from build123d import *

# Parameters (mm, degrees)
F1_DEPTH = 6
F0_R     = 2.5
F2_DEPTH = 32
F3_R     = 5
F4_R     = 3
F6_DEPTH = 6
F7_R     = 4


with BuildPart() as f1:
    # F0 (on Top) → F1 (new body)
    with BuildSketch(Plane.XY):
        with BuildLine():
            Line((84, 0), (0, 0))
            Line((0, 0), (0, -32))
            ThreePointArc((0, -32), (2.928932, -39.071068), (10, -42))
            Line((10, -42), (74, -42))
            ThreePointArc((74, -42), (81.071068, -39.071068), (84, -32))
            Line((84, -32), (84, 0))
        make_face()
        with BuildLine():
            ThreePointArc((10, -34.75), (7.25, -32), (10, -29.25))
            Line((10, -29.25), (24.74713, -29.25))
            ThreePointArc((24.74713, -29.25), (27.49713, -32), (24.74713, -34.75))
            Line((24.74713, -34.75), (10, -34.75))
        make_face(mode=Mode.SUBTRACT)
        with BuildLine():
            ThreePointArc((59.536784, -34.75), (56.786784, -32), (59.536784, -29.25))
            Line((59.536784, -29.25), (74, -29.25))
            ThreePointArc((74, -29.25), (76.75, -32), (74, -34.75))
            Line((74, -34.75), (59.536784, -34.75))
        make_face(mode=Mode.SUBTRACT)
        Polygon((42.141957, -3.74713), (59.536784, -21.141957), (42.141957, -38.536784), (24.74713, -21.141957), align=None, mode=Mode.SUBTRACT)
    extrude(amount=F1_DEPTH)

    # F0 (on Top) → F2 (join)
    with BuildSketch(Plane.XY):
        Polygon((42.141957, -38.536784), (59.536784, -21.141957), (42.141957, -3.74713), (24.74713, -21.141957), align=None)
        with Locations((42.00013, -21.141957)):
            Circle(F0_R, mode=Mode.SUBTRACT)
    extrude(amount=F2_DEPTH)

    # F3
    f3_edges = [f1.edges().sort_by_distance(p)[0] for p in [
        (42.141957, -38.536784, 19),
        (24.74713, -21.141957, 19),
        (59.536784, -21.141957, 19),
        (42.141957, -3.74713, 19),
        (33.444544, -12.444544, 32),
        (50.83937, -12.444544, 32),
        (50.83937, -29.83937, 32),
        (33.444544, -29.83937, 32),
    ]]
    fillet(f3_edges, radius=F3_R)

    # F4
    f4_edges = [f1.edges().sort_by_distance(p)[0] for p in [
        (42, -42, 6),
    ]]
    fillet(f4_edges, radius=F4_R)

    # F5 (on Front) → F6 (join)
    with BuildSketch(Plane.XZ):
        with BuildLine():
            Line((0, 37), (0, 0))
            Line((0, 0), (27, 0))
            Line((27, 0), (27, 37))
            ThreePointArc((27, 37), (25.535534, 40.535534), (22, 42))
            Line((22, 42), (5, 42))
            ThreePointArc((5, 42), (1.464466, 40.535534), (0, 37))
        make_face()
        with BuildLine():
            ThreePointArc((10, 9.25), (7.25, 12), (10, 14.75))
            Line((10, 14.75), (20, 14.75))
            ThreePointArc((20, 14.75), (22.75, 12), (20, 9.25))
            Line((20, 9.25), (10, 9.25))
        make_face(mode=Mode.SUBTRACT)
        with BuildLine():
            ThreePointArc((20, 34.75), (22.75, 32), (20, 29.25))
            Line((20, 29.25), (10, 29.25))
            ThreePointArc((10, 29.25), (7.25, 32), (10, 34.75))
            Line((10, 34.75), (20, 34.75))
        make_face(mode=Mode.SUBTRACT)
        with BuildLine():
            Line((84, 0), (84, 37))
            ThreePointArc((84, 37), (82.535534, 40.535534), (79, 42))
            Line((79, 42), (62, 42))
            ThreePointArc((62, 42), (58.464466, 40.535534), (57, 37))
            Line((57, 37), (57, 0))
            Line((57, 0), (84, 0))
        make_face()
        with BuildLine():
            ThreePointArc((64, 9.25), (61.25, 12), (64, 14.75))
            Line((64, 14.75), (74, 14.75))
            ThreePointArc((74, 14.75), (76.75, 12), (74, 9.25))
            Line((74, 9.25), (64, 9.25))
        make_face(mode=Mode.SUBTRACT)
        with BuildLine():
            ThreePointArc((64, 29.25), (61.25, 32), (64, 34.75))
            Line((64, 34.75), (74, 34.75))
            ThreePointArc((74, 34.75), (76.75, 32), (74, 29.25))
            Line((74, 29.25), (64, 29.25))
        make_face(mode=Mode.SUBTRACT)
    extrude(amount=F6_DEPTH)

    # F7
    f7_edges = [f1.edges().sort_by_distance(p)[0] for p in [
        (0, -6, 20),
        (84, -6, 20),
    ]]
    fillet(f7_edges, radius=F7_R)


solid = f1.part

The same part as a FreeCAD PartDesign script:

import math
import FreeCAD as App
import Part
import Sketcher
from FreeCAD import Vector


def edges_at(feature, points):
    """Names of the edges that pass closest to the given points."""
    edges = feature.Shape.Edges
    near = lambda p: min(range(len(edges)), key=lambda i: edges[i].distToShape(Part.Vertex(*p))[0])
    return sorted({f"Edge{near(p) + 1}" for p in points})

doc = App.newDocument("Part")
body = doc.addObject("PartDesign::Body", "Body")

# Sketch on XY plane
sketch1 = body.newObject("Sketcher::SketchObject", "Sketch")
sketch1.AttachmentSupport = (doc.getObject("XY_Plane"), [""])
sketch1.MapMode = "FlatFace"
sketch1.addGeometry(Part.LineSegment(Vector(84, 0, 0), Vector(0, 0, 0)), False)
sketch1.addGeometry(Part.LineSegment(Vector(0, 0, 0), Vector(0, -32, 0)), False)
sketch1.addGeometry(Part.ArcOfCircle(Part.Circle(Vector(9.999999, -32.000001, 0), Vector(0, 0, 1), 9.999999), math.radians(179.999996), math.radians(270.000004)), False)
sketch1.addGeometry(Part.LineSegment(Vector(10, -42, 0), Vector(74, -42, 0)), False)
sketch1.addGeometry(Part.ArcOfCircle(Part.Circle(Vector(74.000001, -32.000001, 0), Vector(0, 0, 1), 9.999999), math.radians(-90.000004), math.radians(0.000004)), False)
sketch1.addGeometry(Part.LineSegment(Vector(84, -32, 0), Vector(84, 0, 0)), False)
sketch1.addGeometry(Part.LineSegment(Vector(24.74713, -34.75, 0), Vector(10, -34.75, 0)), False)
sketch1.addGeometry(Part.ArcOfCircle(Part.Circle(Vector(10, -32, 0), Vector(0, 0, 1), 2.75), math.radians(90), math.radians(270)), False)
sketch1.addGeometry(Part.LineSegment(Vector(10, -29.25, 0), Vector(24.74713, -29.25, 0)), False)
sketch1.addGeometry(Part.ArcOfCircle(Part.Circle(Vector(24.74713, -32, 0), Vector(0, 0, 1), 2.75), math.radians(-90), math.radians(90)), False)
sketch1.addGeometry(Part.LineSegment(Vector(74, -34.75, 0), Vector(59.536784, -34.75, 0)), False)
sketch1.addGeometry(Part.ArcOfCircle(Part.Circle(Vector(59.536784, -32, 0), Vector(0, 0, 1), 2.75), math.radians(90), math.radians(270)), False)
sketch1.addGeometry(Part.LineSegment(Vector(59.536784, -29.25, 0), Vector(74, -29.25, 0)), False)
sketch1.addGeometry(Part.ArcOfCircle(Part.Circle(Vector(74, -32, 0), Vector(0, 0, 1), 2.75), math.radians(-90), math.radians(90)), False)
sketch1.addGeometry(Part.LineSegment(Vector(24.74713, -21.141957, 0), Vector(42.141957, -3.74713, 0)), False)
sketch1.addGeometry(Part.LineSegment(Vector(42.141957, -3.74713, 0), Vector(59.536784, -21.141957, 0)), False)
sketch1.addGeometry(Part.LineSegment(Vector(59.536784, -21.141957, 0), Vector(42.141957, -38.536784, 0)), False)
sketch1.addGeometry(Part.LineSegment(Vector(42.141957, -38.536784, 0), Vector(24.74713, -21.141957, 0)), False)
sketch1.addConstraint(Sketcher.Constraint("Coincident", 0, 2, 1, 1))
sketch1.addConstraint(Sketcher.Constraint("Tangent", 1, 2, 2, 1))
sketch1.addConstraint(Sketcher.Constraint("Tangent", 2, 2, 3, 1))
sketch1.addConstraint(Sketcher.Constraint("Tangent", 3, 2, 4, 1))
sketch1.addConstraint(Sketcher.Constraint("Tangent", 4, 2, 5, 1))
sketch1.addConstraint(Sketcher.Constraint("Coincident", 5, 2, 0, 1))
sketch1.addConstraint(Sketcher.Constraint("Tangent", 6, 2, 7, 2))
sketch1.addConstraint(Sketcher.Constraint("Tangent", 7, 1, 8, 1))
sketch1.addConstraint(Sketcher.Constraint("Tangent", 8, 2, 9, 2))
sketch1.addConstraint(Sketcher.Constraint("Tangent", 9, 1, 6, 1))
sketch1.addConstraint(Sketcher.Constraint("Tangent", 10, 2, 11, 2))
sketch1.addConstraint(Sketcher.Constraint("Tangent", 11, 1, 12, 1))
sketch1.addConstraint(Sketcher.Constraint("Tangent", 12, 2, 13, 2))
sketch1.addConstraint(Sketcher.Constraint("Tangent", 13, 1, 10, 1))
sketch1.addConstraint(Sketcher.Constraint("Coincident", 14, 2, 15, 1))
sketch1.addConstraint(Sketcher.Constraint("Coincident", 15, 2, 16, 1))
sketch1.addConstraint(Sketcher.Constraint("Coincident", 16, 2, 17, 1))
sketch1.addConstraint(Sketcher.Constraint("Coincident", 17, 2, 14, 1))
sketch1.addConstraint(Sketcher.Constraint("Horizontal", 0))
sketch1.addConstraint(Sketcher.Constraint("Vertical", 1))
sketch1.addConstraint(Sketcher.Constraint("Horizontal", 3))
sketch1.addConstraint(Sketcher.Constraint("Vertical", 5))
sketch1.addConstraint(Sketcher.Constraint("Horizontal", 6))
sketch1.addConstraint(Sketcher.Constraint("Horizontal", 8))
sketch1.addConstraint(Sketcher.Constraint("Horizontal", 10))
sketch1.addConstraint(Sketcher.Constraint("Horizontal", 12))
sketch1.addConstraint(Sketcher.Constraint("Coincident", 0, 2, -1, 1))
sketch1.addConstraint(Sketcher.Constraint("Coincident", 7, 3, 2, 3))
sketch1.addConstraint(Sketcher.Constraint("Coincident", 13, 3, 4, 3))
sketch1.addConstraint(Sketcher.Constraint("Equal", 2, 4))
sketch1.addConstraint(Sketcher.Constraint("Equal", 9, 11))
sketch1.addConstraint(Sketcher.Constraint("Perpendicular", 14, 15))
sketch1.addConstraint(Sketcher.Constraint("Perpendicular", 15, 16))
sketch1.addConstraint(Sketcher.Constraint("Perpendicular", 16, 17))
sketch1.addConstraint(Sketcher.Constraint("Horizontal", 15, 2, 17, 2))
sketch1.addConstraint(Sketcher.Constraint("Vertical", 11, 1, 15, 2))
sketch1.addConstraint(Sketcher.Constraint("Vertical", 14, 2, 16, 2))
sketch1.addConstraint(Sketcher.Constraint("Vertical", 9, 1, 17, 2))
sketch1.addConstraint(Sketcher.Constraint("Radius", 2, 9.999999))
sketch1.addConstraint(Sketcher.Constraint("DistanceX", 0, 2, 0, 1, 84.0))
sketch1.addConstraint(Sketcher.Constraint("DistanceY", 1, 2, 1, 1, 32.0))
sketch1.addConstraint(Sketcher.Constraint("Radius", 7, 2.75))
sketch1.addConstraint(Sketcher.Constraint("Distance", 14, 24.6))
sketch1.addConstraint(Sketcher.Constraint("DistanceX", 6, 2, 6, 1, 14.74713))
sketch1.addConstraint(Sketcher.Constraint("DistanceY", 14, 2, -1, 1, 3.74713))
pad1 = body.newObject("PartDesign::Pad", "Pad")
pad1.Profile = sketch1
pad1.Length = 6

# Sketch on XY plane
sketch2 = body.newObject("Sketcher::SketchObject", "Sketch001")
sketch2.AttachmentSupport = (doc.getObject("XY_Plane"), [""])
sketch2.MapMode = "FlatFace"
sketch2.addGeometry(Part.LineSegment(Vector(42.141957, -38.536784, 0), Vector(59.536784, -21.141957, 0)), False)
sketch2.addGeometry(Part.LineSegment(Vector(59.536784, -21.141957, 0), Vector(42.141957, -3.74713, 0)), False)
sketch2.addGeometry(Part.LineSegment(Vector(42.141957, -3.74713, 0), Vector(24.74713, -21.141957, 0)), False)
sketch2.addGeometry(Part.LineSegment(Vector(24.74713, -21.141957, 0), Vector(42.141957, -38.536784, 0)), False)
sketch2.addGeometry(Part.Circle(Vector(42.00013, -21.141957, 0), Vector(0, 0, 1), 2.5), False)
sketch2.addConstraint(Sketcher.Constraint("Coincident", 0, 2, 1, 1))
sketch2.addConstraint(Sketcher.Constraint("Coincident", 1, 2, 2, 1))
sketch2.addConstraint(Sketcher.Constraint("Coincident", 2, 2, 3, 1))
sketch2.addConstraint(Sketcher.Constraint("Coincident", 3, 2, 0, 1))
sketch2.addConstraint(Sketcher.Constraint("Perpendicular", 0, 1))
sketch2.addConstraint(Sketcher.Constraint("Perpendicular", 1, 2))
sketch2.addConstraint(Sketcher.Constraint("Perpendicular", 2, 3))
sketch2.addConstraint(Sketcher.Constraint("Horizontal", 4, 3, 0, 2))
sketch2.addConstraint(Sketcher.Constraint("Horizontal", 0, 2, 2, 2))
sketch2.addConstraint(Sketcher.Constraint("Vertical", 1, 2, 3, 2))
sketch2.addConstraint(Sketcher.Constraint("Diameter", 4, 5.0))
sketch2.addConstraint(Sketcher.Constraint("Distance", 0, 24.6))
sketch2.addConstraint(Sketcher.Constraint("DistanceX", 2, 2, 4, 3, 17.253))
sketch2.addConstraint(Sketcher.Constraint("DistanceX", -1, 1, 4, 3, 42.00013))
sketch2.addConstraint(Sketcher.Constraint("DistanceY", 1, 2, -1, 1, 3.74713))
pad2 = body.newObject("PartDesign::Pad", "Pad001")
pad2.Profile = sketch2
pad2.Length = 32
doc.recompute()

fillet = body.newObject("PartDesign::Fillet", "Fillet")
fillet.Base = (pad2, edges_at(pad2, [
    (42.142, -38.537, 19),
    (24.747, -21.142, 19),
    (59.537, -21.142, 19),
    (42.142, -3.747, 19),
    (33.445, -12.445, 32),
    (50.839, -12.445, 32),
    (50.839, -29.839, 32),
    (33.445, -29.839, 32),
]))
fillet.Radius = 5
doc.recompute()

fillet2 = body.newObject("PartDesign::Fillet", "Fillet001")
fillet2.Base = (fillet, edges_at(fillet, [(42, -42, 6)]))
fillet2.Radius = 3

# Sketch on XZ plane
sketch3 = body.newObject("Sketcher::SketchObject", "Sketch002")
sketch3.AttachmentSupport = (doc.getObject("XZ_Plane"), [""])
sketch3.MapMode = "FlatFace"
sketch3.addGeometry(Part.LineSegment(Vector(0, 37, 0), Vector(0, 0, 0)), False)
sketch3.addGeometry(Part.LineSegment(Vector(0, 0, 0), Vector(27, 0, 0)), False)
sketch3.addGeometry(Part.LineSegment(Vector(27, 0, 0), Vector(27, 37, 0)), False)
sketch3.addGeometry(Part.ArcOfCircle(Part.Circle(Vector(22, 37, 0), Vector(0, 0, 1), 5), math.radians(-0.000004), math.radians(90.000004)), False)
sketch3.addGeometry(Part.LineSegment(Vector(22, 42, 0), Vector(5, 42, 0)), False)
sketch3.addGeometry(Part.ArcOfCircle(Part.Circle(Vector(5, 37, 0), Vector(0, 0, 1), 5), math.radians(89.999996), math.radians(180.000004)), False)
sketch3.addGeometry(Part.LineSegment(Vector(20, 9.25, 0), Vector(10, 9.25, 0)), False)
sketch3.addGeometry(Part.ArcOfCircle(Part.Circle(Vector(10, 12, 0), Vector(0, 0, 1), 2.75), math.radians(90), math.radians(270)), False)
sketch3.addGeometry(Part.LineSegment(Vector(10, 14.75, 0), Vector(20, 14.75, 0)), False)
sketch3.addGeometry(Part.ArcOfCircle(Part.Circle(Vector(20, 12, 0), Vector(0, 0, 1), 2.75), math.radians(-90), math.radians(90)), False)
sketch3.addGeometry(Part.LineSegment(Vector(10, 34.75, 0), Vector(20, 34.75, 0)), False)
sketch3.addGeometry(Part.ArcOfCircle(Part.Circle(Vector(20, 32, 0), Vector(0, 0, 1), 2.75), math.radians(-90), math.radians(90)), False)
sketch3.addGeometry(Part.LineSegment(Vector(20, 29.25, 0), Vector(10, 29.25, 0)), False)
sketch3.addGeometry(Part.ArcOfCircle(Part.Circle(Vector(10, 32, 0), Vector(0, 0, 1), 2.75), math.radians(90), math.radians(270)), False)
sketch3.addGeometry(Part.LineSegment(Vector(84, 0, 0), Vector(84, 37, 0)), False)
sketch3.addGeometry(Part.ArcOfCircle(Part.Circle(Vector(79, 37, 0), Vector(0, 0, 1), 5), math.radians(-0.000004), math.radians(90.000004)), False)
sketch3.addGeometry(Part.LineSegment(Vector(79, 42, 0), Vector(62, 42, 0)), False)
sketch3.addGeometry(Part.ArcOfCircle(Part.Circle(Vector(62, 37, 0), Vector(0, 0, 1), 5), math.radians(89.999996), math.radians(180.000004)), False)
sketch3.addGeometry(Part.LineSegment(Vector(57, 37, 0), Vector(57, 0, 0)), False)
sketch3.addGeometry(Part.LineSegment(Vector(57, 0, 0), Vector(84, 0, 0)), False)
sketch3.addGeometry(Part.LineSegment(Vector(74, 9.25, 0), Vector(64, 9.25, 0)), False)
sketch3.addGeometry(Part.ArcOfCircle(Part.Circle(Vector(64, 12, 0), Vector(0, 0, 1), 2.75), math.radians(90), math.radians(270)), False)
sketch3.addGeometry(Part.LineSegment(Vector(64, 14.75, 0), Vector(74, 14.75, 0)), False)
sketch3.addGeometry(Part.ArcOfCircle(Part.Circle(Vector(74, 12, 0), Vector(0, 0, 1), 2.75), math.radians(-90), math.radians(90)), False)
sketch3.addGeometry(Part.LineSegment(Vector(74, 29.25, 0), Vector(64, 29.25, 0)), False)
sketch3.addGeometry(Part.ArcOfCircle(Part.Circle(Vector(64, 32, 0), Vector(0, 0, 1), 2.75), math.radians(90), math.radians(270)), False)
sketch3.addGeometry(Part.LineSegment(Vector(64, 34.75, 0), Vector(74, 34.75, 0)), False)
sketch3.addGeometry(Part.ArcOfCircle(Part.Circle(Vector(74, 32, 0), Vector(0, 0, 1), 2.75), math.radians(-90), math.radians(90)), False)
sketch3.addConstraint(Sketcher.Constraint("Coincident", 0, 2, 1, 1))
sketch3.addConstraint(Sketcher.Constraint("Coincident", 1, 2, 2, 1))
sketch3.addConstraint(Sketcher.Constraint("Tangent", 2, 2, 3, 1))
sketch3.addConstraint(Sketcher.Constraint("Tangent", 3, 2, 4, 1))
sketch3.addConstraint(Sketcher.Constraint("Tangent", 4, 2, 5, 1))
sketch3.addConstraint(Sketcher.Constraint("Tangent", 5, 2, 0, 1))
sketch3.addConstraint(Sketcher.Constraint("Tangent", 6, 2, 7, 2))
sketch3.addConstraint(Sketcher.Constraint("Tangent", 7, 1, 8, 1))
sketch3.addConstraint(Sketcher.Constraint("Tangent", 8, 2, 9, 2))
sketch3.addConstraint(Sketcher.Constraint("Tangent", 9, 1, 6, 1))
sketch3.addConstraint(Sketcher.Constraint("Tangent", 10, 2, 11, 2))
sketch3.addConstraint(Sketcher.Constraint("Tangent", 11, 1, 12, 1))
sketch3.addConstraint(Sketcher.Constraint("Tangent", 12, 2, 13, 2))
sketch3.addConstraint(Sketcher.Constraint("Tangent", 13, 1, 10, 1))
sketch3.addConstraint(Sketcher.Constraint("Tangent", 14, 2, 15, 1))
sketch3.addConstraint(Sketcher.Constraint("Tangent", 15, 2, 16, 1))
sketch3.addConstraint(Sketcher.Constraint("Tangent", 16, 2, 17, 1))
sketch3.addConstraint(Sketcher.Constraint("Tangent", 17, 2, 18, 1))
sketch3.addConstraint(Sketcher.Constraint("Coincident", 18, 2, 19, 1))
sketch3.addConstraint(Sketcher.Constraint("Coincident", 19, 2, 14, 1))
sketch3.addConstraint(Sketcher.Constraint("Tangent", 20, 2, 21, 2))
sketch3.addConstraint(Sketcher.Constraint("Tangent", 21, 1, 22, 1))
sketch3.addConstraint(Sketcher.Constraint("Tangent", 22, 2, 23, 2))
sketch3.addConstraint(Sketcher.Constraint("Tangent", 23, 1, 20, 1))
sketch3.addConstraint(Sketcher.Constraint("Tangent", 24, 2, 25, 2))
sketch3.addConstraint(Sketcher.Constraint("Tangent", 25, 1, 26, 1))
sketch3.addConstraint(Sketcher.Constraint("Tangent", 26, 2, 27, 2))
sketch3.addConstraint(Sketcher.Constraint("Tangent", 27, 1, 24, 1))
sketch3.addConstraint(Sketcher.Constraint("Vertical", 0))
sketch3.addConstraint(Sketcher.Constraint("Horizontal", 1))
sketch3.addConstraint(Sketcher.Constraint("Vertical", 2))
sketch3.addConstraint(Sketcher.Constraint("Horizontal", 4))
sketch3.addConstraint(Sketcher.Constraint("Horizontal", 6))
sketch3.addConstraint(Sketcher.Constraint("Horizontal", 8))
sketch3.addConstraint(Sketcher.Constraint("Horizontal", 10))
sketch3.addConstraint(Sketcher.Constraint("Horizontal", 12))
sketch3.addConstraint(Sketcher.Constraint("Vertical", 14))
sketch3.addConstraint(Sketcher.Constraint("Horizontal", 16))
sketch3.addConstraint(Sketcher.Constraint("Vertical", 18))
sketch3.addConstraint(Sketcher.Constraint("Horizontal", 19))
sketch3.addConstraint(Sketcher.Constraint("Horizontal", 20))
sketch3.addConstraint(Sketcher.Constraint("Horizontal", 22))
sketch3.addConstraint(Sketcher.Constraint("Horizontal", 24))
sketch3.addConstraint(Sketcher.Constraint("Horizontal", 26))
sketch3.addConstraint(Sketcher.Constraint("Coincident", 0, 2, -1, 1))
sketch3.addConstraint(Sketcher.Constraint("Equal", 3, 5))
sketch3.addConstraint(Sketcher.Constraint("Equal", 9, 11))
sketch3.addConstraint(Sketcher.Constraint("Equal", 5, 15))
sketch3.addConstraint(Sketcher.Constraint("Equal", 15, 17))
sketch3.addConstraint(Sketcher.Constraint("Equal", 13, 21))
sketch3.addConstraint(Sketcher.Constraint("Equal", 23, 25))
sketch3.addConstraint(Sketcher.Constraint("PointOnObject", 18, 2, -1))
sketch3.addConstraint(Sketcher.Constraint("Horizontal", 5, 3, 15, 3))
sketch3.addConstraint(Sketcher.Constraint("Horizontal", 9, 3, 21, 3))
sketch3.addConstraint(Sketcher.Constraint("Horizontal", 13, 3, 25, 3))
sketch3.addConstraint(Sketcher.Constraint("Vertical", 9, 3, 11, 3))
sketch3.addConstraint(Sketcher.Constraint("Vertical", 7, 3, 13, 3))
sketch3.addConstraint(Sketcher.Constraint("Vertical", 21, 3, 25, 3))
sketch3.addConstraint(Sketcher.Constraint("Vertical", 23, 3, 27, 3))
sketch3.addConstraint(Sketcher.Constraint("Equal", 4, 16))
sketch3.addConstraint(Sketcher.Constraint("Equal", 12, 20))
sketch3.addConstraint(Sketcher.Constraint("Radius", 3, 5.0))
sketch3.addConstraint(Sketcher.Constraint("DistanceX", 1, 1, 1, 2, 27.0))
sketch3.addConstraint(Sketcher.Constraint("DistanceX", 6, 2, 6, 1, 10.0))
sketch3.addConstraint(Sketcher.Constraint("DistanceY", 0, 2, 0, 1, 37.0))
sketch3.addConstraint(Sketcher.Constraint("Radius", 7, 2.75))
sketch3.addConstraint(Sketcher.Constraint("DistanceX", -1, 1, 7, 3, 10.0))
sketch3.addConstraint(Sketcher.Constraint("DistanceY", -1, 1, 7, 3, 12.0))
sketch3.addConstraint(Sketcher.Constraint("DistanceY", -1, 1, 11, 3, 32.0))
sketch3.addConstraint(Sketcher.Constraint("DistanceX", -1, 1, 15, 3, 79.0))
sketch3.addConstraint(Sketcher.Constraint("DistanceX", -1, 1, 21, 3, 64.0))
pad3 = body.newObject("PartDesign::Pad", "Pad002")
pad3.Profile = sketch3
pad3.Length = 6
doc.recompute()

fillet3 = body.newObject("PartDesign::Fillet", "Fillet002")
fillet3.Base = (pad3, edges_at(pad3, [(0, -6, 20), (84, -6, 20)]))
fillet3.Radius = 4

doc.recompute()
